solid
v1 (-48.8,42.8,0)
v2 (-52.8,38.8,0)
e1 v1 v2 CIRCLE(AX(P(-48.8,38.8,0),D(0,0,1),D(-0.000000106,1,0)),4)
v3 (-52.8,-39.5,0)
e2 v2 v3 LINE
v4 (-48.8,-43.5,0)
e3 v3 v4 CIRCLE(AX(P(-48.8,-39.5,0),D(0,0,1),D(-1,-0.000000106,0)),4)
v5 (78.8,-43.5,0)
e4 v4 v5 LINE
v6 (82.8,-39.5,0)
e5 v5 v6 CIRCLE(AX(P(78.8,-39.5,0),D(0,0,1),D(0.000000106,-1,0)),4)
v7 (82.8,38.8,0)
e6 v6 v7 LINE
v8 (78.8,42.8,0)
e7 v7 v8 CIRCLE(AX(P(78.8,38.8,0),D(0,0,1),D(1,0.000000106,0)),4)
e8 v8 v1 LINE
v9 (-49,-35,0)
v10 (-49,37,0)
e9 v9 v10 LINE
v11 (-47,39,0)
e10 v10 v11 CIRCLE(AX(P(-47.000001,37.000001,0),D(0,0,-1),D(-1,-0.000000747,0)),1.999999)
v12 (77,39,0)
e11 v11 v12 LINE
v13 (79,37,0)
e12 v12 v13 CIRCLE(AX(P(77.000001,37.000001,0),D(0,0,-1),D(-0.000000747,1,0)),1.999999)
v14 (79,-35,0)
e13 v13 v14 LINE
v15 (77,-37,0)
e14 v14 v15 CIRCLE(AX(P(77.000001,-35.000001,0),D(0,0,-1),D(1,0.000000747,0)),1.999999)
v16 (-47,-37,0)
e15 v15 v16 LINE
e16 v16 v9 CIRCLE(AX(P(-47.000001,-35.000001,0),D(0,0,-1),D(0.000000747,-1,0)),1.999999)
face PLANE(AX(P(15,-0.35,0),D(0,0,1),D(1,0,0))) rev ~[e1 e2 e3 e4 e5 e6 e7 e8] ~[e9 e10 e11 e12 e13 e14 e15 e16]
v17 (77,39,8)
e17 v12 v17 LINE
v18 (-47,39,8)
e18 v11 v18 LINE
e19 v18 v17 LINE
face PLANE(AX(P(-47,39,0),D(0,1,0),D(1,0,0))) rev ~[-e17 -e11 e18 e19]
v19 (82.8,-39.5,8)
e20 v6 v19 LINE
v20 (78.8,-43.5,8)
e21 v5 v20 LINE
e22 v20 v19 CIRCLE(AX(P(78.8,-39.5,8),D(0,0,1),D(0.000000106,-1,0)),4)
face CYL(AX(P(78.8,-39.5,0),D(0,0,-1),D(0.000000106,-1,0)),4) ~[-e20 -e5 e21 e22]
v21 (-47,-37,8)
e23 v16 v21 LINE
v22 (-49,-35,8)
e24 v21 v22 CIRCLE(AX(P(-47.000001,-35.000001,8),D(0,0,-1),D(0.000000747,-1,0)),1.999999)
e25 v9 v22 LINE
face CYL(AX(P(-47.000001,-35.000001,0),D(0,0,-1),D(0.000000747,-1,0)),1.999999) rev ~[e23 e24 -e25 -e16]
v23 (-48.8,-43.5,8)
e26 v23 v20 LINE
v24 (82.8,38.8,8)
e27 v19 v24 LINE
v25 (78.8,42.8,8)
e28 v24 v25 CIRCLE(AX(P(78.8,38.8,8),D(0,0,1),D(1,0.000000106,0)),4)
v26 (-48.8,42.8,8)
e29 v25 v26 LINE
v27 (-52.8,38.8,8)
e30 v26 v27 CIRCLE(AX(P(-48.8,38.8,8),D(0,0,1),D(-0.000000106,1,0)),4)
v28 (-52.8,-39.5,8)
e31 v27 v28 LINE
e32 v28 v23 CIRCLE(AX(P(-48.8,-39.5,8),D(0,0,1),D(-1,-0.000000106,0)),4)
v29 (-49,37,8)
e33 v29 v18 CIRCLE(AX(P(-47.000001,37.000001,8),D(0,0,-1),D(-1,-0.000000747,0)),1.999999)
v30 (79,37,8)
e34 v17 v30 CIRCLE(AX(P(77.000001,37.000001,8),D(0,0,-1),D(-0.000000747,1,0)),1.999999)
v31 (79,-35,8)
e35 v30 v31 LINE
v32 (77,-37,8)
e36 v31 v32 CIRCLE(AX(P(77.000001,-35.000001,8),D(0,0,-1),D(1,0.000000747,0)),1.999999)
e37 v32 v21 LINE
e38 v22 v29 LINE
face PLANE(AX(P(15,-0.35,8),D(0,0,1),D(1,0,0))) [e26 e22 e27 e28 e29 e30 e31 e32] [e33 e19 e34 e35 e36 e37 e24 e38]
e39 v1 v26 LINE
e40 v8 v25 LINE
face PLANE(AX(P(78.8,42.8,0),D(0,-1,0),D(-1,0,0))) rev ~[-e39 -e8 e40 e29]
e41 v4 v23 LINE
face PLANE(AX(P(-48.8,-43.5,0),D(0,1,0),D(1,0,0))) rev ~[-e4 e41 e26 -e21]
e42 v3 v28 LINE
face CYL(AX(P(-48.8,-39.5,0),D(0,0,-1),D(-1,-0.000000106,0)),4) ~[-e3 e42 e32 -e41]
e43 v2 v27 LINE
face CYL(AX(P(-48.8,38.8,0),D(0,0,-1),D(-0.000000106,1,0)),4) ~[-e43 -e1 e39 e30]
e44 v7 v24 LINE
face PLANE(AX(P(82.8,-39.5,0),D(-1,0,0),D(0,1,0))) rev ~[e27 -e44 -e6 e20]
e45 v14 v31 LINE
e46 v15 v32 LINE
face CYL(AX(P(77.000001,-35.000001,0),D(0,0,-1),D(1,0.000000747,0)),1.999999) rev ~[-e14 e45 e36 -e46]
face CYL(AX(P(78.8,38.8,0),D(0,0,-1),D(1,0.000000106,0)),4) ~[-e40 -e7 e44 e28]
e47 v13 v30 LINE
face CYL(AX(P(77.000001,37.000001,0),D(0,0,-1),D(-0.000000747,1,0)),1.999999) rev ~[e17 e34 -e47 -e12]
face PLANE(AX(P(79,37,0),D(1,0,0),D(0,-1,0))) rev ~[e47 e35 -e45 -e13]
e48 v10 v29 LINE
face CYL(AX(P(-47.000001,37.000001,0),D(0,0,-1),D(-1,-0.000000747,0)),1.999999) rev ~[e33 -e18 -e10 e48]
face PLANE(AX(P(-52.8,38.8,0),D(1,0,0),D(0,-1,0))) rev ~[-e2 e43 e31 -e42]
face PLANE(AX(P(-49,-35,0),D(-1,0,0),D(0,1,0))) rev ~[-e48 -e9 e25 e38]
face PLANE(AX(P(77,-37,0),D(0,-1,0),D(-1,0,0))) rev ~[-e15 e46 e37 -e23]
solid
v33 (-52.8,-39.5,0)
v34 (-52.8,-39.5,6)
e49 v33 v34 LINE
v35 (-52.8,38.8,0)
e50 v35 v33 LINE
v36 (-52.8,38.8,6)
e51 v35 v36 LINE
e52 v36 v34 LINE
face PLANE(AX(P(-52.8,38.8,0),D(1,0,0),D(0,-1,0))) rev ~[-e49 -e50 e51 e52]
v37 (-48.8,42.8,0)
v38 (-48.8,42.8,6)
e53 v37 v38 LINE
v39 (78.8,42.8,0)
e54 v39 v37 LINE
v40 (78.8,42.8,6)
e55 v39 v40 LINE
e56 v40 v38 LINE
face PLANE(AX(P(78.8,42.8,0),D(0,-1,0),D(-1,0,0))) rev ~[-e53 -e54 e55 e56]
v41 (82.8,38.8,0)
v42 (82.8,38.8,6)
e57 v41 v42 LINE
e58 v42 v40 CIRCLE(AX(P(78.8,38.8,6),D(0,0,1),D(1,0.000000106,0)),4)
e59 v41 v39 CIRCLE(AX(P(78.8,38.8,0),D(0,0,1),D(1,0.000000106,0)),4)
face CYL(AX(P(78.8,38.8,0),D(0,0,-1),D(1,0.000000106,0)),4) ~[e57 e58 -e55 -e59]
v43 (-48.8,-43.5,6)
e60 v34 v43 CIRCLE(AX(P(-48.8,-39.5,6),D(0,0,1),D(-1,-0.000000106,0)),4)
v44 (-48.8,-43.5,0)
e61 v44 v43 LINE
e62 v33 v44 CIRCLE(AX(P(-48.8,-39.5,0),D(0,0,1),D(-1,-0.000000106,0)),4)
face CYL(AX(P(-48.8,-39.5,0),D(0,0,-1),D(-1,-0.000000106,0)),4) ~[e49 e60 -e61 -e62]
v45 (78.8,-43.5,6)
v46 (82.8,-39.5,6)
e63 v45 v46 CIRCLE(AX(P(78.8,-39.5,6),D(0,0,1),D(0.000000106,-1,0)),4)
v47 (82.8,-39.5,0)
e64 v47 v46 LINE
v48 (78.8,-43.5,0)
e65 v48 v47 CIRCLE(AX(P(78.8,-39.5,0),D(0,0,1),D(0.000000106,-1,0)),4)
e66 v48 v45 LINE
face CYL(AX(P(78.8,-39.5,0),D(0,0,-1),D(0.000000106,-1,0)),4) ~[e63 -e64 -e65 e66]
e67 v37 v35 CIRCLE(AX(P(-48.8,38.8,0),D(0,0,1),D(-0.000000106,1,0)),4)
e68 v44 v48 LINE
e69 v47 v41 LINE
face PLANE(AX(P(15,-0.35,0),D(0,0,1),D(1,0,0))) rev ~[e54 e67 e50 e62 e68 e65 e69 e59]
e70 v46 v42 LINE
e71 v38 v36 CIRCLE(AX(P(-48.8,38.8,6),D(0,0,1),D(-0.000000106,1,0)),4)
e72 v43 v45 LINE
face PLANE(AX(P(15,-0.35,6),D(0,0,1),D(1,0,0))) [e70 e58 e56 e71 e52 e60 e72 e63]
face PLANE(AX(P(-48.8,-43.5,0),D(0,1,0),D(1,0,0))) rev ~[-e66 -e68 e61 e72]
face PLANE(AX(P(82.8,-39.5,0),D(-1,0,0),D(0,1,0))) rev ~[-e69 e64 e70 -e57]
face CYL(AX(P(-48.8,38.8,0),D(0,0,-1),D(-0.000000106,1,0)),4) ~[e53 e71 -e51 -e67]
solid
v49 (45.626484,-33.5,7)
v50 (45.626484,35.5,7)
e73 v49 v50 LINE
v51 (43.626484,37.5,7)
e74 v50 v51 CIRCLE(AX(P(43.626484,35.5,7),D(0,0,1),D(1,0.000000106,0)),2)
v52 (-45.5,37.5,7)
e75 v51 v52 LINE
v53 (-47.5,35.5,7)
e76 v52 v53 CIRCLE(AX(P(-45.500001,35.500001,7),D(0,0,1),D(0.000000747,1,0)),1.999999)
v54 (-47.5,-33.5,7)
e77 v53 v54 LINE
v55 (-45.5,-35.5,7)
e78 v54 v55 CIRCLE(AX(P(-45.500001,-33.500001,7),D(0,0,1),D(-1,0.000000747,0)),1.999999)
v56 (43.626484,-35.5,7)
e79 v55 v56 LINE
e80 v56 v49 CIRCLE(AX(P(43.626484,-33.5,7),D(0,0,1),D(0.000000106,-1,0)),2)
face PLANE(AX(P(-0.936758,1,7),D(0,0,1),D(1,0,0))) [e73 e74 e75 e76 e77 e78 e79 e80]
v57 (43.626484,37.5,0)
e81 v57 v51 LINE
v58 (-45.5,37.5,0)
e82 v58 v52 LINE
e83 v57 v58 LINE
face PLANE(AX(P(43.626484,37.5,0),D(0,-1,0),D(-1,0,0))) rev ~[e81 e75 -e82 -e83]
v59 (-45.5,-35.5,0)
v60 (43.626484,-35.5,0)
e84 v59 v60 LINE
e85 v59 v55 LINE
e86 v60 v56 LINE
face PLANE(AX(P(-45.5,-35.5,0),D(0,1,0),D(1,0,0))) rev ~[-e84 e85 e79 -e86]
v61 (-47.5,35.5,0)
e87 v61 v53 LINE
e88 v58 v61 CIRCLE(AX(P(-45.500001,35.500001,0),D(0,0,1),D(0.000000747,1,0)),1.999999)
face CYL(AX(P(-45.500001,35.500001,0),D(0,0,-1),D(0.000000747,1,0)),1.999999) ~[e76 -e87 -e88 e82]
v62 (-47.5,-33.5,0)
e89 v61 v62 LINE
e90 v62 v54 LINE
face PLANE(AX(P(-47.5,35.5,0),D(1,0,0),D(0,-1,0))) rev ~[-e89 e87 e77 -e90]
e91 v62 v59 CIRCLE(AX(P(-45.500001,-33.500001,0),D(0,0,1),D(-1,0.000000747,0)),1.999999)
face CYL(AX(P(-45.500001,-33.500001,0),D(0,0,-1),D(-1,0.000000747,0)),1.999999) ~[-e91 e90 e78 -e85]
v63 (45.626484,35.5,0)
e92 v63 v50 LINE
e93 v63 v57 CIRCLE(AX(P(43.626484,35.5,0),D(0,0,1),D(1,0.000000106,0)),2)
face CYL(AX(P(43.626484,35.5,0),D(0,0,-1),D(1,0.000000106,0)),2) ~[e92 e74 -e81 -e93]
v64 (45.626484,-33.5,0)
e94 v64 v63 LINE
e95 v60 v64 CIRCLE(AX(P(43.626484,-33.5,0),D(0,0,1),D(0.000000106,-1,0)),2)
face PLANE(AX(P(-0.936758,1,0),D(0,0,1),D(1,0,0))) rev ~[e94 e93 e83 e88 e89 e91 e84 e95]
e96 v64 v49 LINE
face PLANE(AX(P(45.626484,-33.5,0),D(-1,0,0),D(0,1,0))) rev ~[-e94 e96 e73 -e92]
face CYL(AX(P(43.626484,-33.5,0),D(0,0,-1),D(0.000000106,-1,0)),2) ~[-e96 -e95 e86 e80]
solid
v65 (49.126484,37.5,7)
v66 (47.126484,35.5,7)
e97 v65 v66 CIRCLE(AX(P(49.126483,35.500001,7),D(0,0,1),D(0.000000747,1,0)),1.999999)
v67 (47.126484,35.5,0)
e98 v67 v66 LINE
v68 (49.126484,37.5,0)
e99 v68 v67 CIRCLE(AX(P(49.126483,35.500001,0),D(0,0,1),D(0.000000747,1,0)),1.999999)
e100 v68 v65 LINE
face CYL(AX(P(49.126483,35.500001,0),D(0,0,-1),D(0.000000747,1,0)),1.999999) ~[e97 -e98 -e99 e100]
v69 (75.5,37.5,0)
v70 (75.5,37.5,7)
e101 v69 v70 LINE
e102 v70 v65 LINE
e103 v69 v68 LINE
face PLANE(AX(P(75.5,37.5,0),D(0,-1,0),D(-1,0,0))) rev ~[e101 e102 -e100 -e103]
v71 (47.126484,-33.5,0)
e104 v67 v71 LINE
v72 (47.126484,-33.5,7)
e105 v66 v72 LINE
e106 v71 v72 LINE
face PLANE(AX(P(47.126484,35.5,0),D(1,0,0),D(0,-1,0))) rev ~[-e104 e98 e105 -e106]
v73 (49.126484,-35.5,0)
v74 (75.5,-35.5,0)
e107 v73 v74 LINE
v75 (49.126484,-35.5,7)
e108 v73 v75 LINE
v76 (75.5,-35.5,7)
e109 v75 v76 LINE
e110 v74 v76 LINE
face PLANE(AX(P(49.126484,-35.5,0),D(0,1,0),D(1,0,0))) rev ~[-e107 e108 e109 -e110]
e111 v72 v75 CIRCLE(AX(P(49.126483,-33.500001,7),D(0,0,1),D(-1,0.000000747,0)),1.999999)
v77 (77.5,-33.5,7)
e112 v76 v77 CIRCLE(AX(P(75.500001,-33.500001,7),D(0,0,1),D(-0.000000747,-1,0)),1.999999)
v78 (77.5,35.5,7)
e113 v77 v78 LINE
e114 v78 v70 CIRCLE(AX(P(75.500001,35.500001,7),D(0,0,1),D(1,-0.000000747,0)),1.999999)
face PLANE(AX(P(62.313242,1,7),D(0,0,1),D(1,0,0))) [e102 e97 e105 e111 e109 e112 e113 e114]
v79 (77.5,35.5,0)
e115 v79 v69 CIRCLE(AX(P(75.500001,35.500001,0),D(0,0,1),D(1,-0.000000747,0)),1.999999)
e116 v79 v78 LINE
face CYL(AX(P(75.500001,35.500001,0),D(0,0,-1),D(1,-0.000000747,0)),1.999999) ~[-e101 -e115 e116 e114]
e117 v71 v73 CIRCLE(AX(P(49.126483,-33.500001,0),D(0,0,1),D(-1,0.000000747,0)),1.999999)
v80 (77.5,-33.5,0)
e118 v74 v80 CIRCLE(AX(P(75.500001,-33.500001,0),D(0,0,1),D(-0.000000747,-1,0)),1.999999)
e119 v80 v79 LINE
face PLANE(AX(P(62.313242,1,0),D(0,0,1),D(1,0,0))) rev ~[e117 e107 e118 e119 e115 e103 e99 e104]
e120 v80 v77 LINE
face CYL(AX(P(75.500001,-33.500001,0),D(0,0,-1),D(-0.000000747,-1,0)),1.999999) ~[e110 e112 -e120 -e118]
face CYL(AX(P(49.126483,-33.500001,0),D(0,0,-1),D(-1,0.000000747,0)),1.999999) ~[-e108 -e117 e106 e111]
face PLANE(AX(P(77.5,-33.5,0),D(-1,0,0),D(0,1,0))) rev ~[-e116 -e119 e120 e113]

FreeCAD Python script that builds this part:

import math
import FreeCAD as App
import Part
import Sketcher
from FreeCAD import Vector
Q = App.Units.Quantity

doc = App.newDocument("Part")
params = doc.addObject("Spreadsheet::Sheet", "Params")
for row, (alias, value) in enumerate([
    ("sketch1_radius", "4 mm"),
    ("sketch1_radius2", "1.999999 mm"),
    ("sketch1_width", "124 mm"),
    ("sketch1_height", "72 mm"),
    ("sketch1_width2", "127.6 mm"),
    ("pad1_length", "8 mm"),
    ("sketch2_radius", "2 mm"),
    ("sketch2_height", "69 mm"),
    ("pad2_length", "7 mm"),
    ("sketch3_radius", "4 mm"),
    ("sketch3_width", "127.6 mm"),
    ("sketch3_height", "78.3 mm"),
    ("pad3_length", "6 mm"),
], start=1):
    params.set(f"A{row}", alias)
    params.set(f"B{row}", "=" + value)
    params.setAlias(f"B{row}", alias)

body = doc.addObject("PartDesign::Body", "Body")

sketch1 = doc.addObject("Sketcher::SketchObject", "Sketch")
body.addObject(sketch1)
sketch1.AttachmentSupport = (doc.XY_Plane, [""])
sketch1.MapMode = "FlatFace"
sketch1.addGeometry([
    Part.LineSegment(Vector(78.8, 42.8, 0), Vector(-48.8, 42.8, 0)),
    Part.ArcOfCircle(Part.Circle(Vector(-48.8, 38.8, 0), Vector(0, 0, 1), 4), math.radians(90), math.radians(180)),
    Part.LineSegment(Vector(-52.8, 38.8, 0), Vector(-52.8, -39.5, 0)),
    Part.ArcOfCircle(Part.Circle(Vector(-48.8, -39.5, 0), Vector(0, 0, 1), 4), math.radians(-180), math.radians(-90)),
    Part.LineSegment(Vector(-48.8, -43.5, 0), Vector(78.8, -43.5, 0)),
    Part.ArcOfCircle(Part.Circle(Vector(78.8, -39.5, 0), Vector(0, 0, 1), 4), math.radians(-90), math.radians(0)),
    Part.LineSegment(Vector(82.8, -39.5, 0), Vector(82.8, 38.8, 0)),
    Part.ArcOfCircle(Part.Circle(Vector(78.8, 38.8, 0), Vector(0, 0, 1), 4), math.radians(0), math.radians(90)),
    Part.ArcOfCircle(Part.Circle(Vector(-47, 37, 0), Vector(0, 0, 1), 2), math.radians(90), math.radians(180)),
    Part.LineSegment(Vector(-47, 39, 0), Vector(77, 39, 0)),
    Part.ArcOfCircle(Part.Circle(Vector(77, 37, 0), Vector(0, 0, 1), 2), math.radians(0), math.radians(90)),
    Part.LineSegment(Vector(79, 37, 0), Vector(79, -35, 0)),
    Part.ArcOfCircle(Part.Circle(Vector(77, -35, 0), Vector(0, 0, 1), 2), math.radians(-90), math.radians(0)),
    Part.LineSegment(Vector(77, -37, 0), Vector(-47, -37, 0)),
    Part.ArcOfCircle(Part.Circle(Vector(-47, -35, 0), Vector(0, 0, 1), 2), math.radians(180), math.radians(270)),
    Part.LineSegment(Vector(-49, -35, 0), Vector(-49, 37, 0)),
], False)
sketch1.addConstraint([
    Sketcher.Constraint("Tangent", 0, 2, 1, 1),
    Sketcher.Constraint("Tangent", 1, 2, 2, 1),
    Sketcher.Constraint("Tangent", 2, 2, 3, 1),
    Sketcher.Constraint("Tangent", 3, 2, 4, 1),
    Sketcher.Constraint("Tangent", 4, 2, 5, 1),
    Sketcher.Constraint("Tangent", 5, 2, 6, 1),
    Sketcher.Constraint("Tangent", 6, 2, 7, 1),
    Sketcher.Constraint("Tangent", 7, 2, 0, 1),
    Sketcher.Constraint("Tangent", 8, 1, 9, 1),
    Sketcher.Constraint("Tangent", 9, 2, 10, 2),
    Sketcher.Constraint("Tangent", 10, 1, 11, 1),
    Sketcher.Constraint("Tangent", 11, 2, 12, 2),
    Sketcher.Constraint("Tangent", 12, 1, 13, 1),
    Sketcher.Constraint("Tangent", 13, 2, 14, 2),
    Sketcher.Constraint("Tangent", 14, 1, 15, 1),
    Sketcher.Constraint("Tangent", 15, 2, 8, 2),
    Sketcher.Constraint("Horizontal", 0),
    Sketcher.Constraint("Vertical", 2),
    Sketcher.Constraint("Horizontal", 4),
    Sketcher.Constraint("Vertical", 6),
    Sketcher.Constraint("Horizontal", 9),
    Sketcher.Constraint("Vertical", 11),
    Sketcher.Constraint("Horizontal", 13),
    Sketcher.Constraint("Vertical", 15),
    Sketcher.Constraint("Equal", 1, 3),
    Sketcher.Constraint("Equal", 3, 5),
    Sketcher.Constraint("Equal", 5, 7),
    Sketcher.Constraint("Equal", 8, 10),
    Sketcher.Constraint("Equal", 10, 12),
    Sketcher.Constraint("Equal", 12, 14),
    Sketcher.Constraint("Radius", 1, Q("4 mm")),
    Sketcher.Constraint("Radius", 8, Q("1.999999 mm")),
    Sketcher.Constraint("DistanceX", 9, 1, 9, 2, Q("124 mm")),
    Sketcher.Constraint("DistanceY", 11, 2, 11, 1, Q("72 mm")),
    Sketcher.Constraint("DistanceX", 0, 2, 0, 1, Q("127.6 mm")),
    Sketcher.Constraint("DistanceY", 2, 2, 2, 1, Q("78.3 mm")),
    Sketcher.Constraint("DistanceX", 8, 3, -1, 1, Q("47.000001 mm")),
    Sketcher.Constraint("DistanceY", -1, 1, 8, 3, Q("37.000001 mm")),
    Sketcher.Constraint("DistanceX", 1, 3, -1, 1, Q("48.8 mm")),
    Sketcher.Constraint("DistanceY", -1, 1, 1, 3, Q("38.8 mm")),
])
sketch1.setExpression("Constraints[30]", "Params.sketch1_radius")
sketch1.setExpression("Constraints[31]", "Params.sketch1_radius2")
sketch1.setExpression("Constraints[32]", "Params.sketch1_width")
sketch1.setExpression("Constraints[33]", "Params.sketch1_height")
sketch1.setExpression("Constraints[34]", "Params.sketch1_width2")
pad1 = doc.addObject("PartDesign::Pad", "Pad")
body.addObject(pad1)
pad1.Profile = sketch1
pad1.setExpression("Length", "Params.pad1_length")
body2 = doc.addObject("PartDesign::Body", "Body001")
body2.AllowCompound = True

sketch2 = doc.addObject("Sketcher::SketchObject", "Sketch001")
body2.addObject(sketch2)
sketch2.AttachmentSupport = (doc.getObject("XY_Plane001"), [""])
sketch2.MapMode = "FlatFace"
sketch2.addGeometry([
    Part.ArcOfCircle(Part.Circle(Vector(43.6, 35.5, 0), Vector(0, 0, 1), 2), math.radians(0), math.radians(90)),
    Part.LineSegment(Vector(43.6, 37.5, 0), Vector(-45.5, 37.5, 0)),
    Part.ArcOfCircle(Part.Circle(Vector(-45.5, 35.5, 0), Vector(0, 0, 1), 2), math.radians(90), math.radians(180)),
    Part.LineSegment(Vector(-47.5, 35.5, 0), Vector(-47.5, -33.5, 0)),
    Part.ArcOfCircle(Part.Circle(Vector(-45.5, -33.5, 0), Vector(0, 0, 1), 2), math.radians(180), math.radians(270)),
    Part.LineSegment(Vector(-45.5, -35.5, 0), Vector(43.6, -35.5, 0)),
    Part.ArcOfCircle(Part.Circle(Vector(43.6, -33.5, 0), Vector(0, 0, 1), 2), math.radians(-90), math.radians(0)),
    Part.LineSegment(Vector(45.6, -33.5, 0), Vector(45.6, 35.5, 0)),
    Part.LineSegment(Vector(75.5, 37.5, 0), Vector(49.1, 37.5, 0)),
    Part.ArcOfCircle(Part.Circle(Vector(49.1, 35.5, 0), Vector(0, 0, 1), 2), math.radians(90), math.radians(180)),
    Part.LineSegment(Vector(47.1, 35.5, 0), Vector(47.1, -33.5, 0)),
    Part.ArcOfCircle(Part.Circle(Vector(49.1, -33.5, 0), Vector(0, 0, 1), 2), math.radians(180), math.radians(270)),
    Part.LineSegment(Vector(49.1, -35.5, 0), Vector(75.5, -35.5, 0)),
    Part.ArcOfCircle(Part.Circle(Vector(75.5, -33.5, 0), Vector(0, 0, 1), 2), math.radians(-90), math.radians(0)),
    Part.LineSegment(Vector(77.5, -33.5, 0), Vector(77.5, 35.5, 0)),
    Part.ArcOfCircle(Part.Circle(Vector(75.5, 35.5, 0), Vector(0, 0, 1), 2), math.radians(0), math.radians(90)),
], False)
sketch2.addConstraint([
    Sketcher.Constraint("Tangent", 0, 2, 1, 1),
    Sketcher.Constraint("Tangent", 1, 2, 2, 1),
    Sketcher.Constraint("Tangent", 2, 2, 3, 1),
    Sketcher.Constraint("Tangent", 3, 2, 4, 1),
    Sketcher.Constraint("Tangent", 4, 2, 5, 1),
    Sketcher.Constraint("Tangent", 5, 2, 6, 1),
    Sketcher.Constraint("Tangent", 6, 2, 7, 1),
    Sketcher.Constraint("Tangent", 7, 2, 0, 1),
    Sketcher.Constraint("Tangent", 8, 2, 9, 1),
    Sketcher.Constraint("Tangent", 9, 2, 10, 1),
    Sketcher.Constraint("Tangent", 10, 2, 11, 1),
    Sketcher.Constraint("Tangent", 11, 2, 12, 1),
    Sketcher.Constraint("Tangent", 12, 2, 13, 1),
    Sketcher.Constraint("Tangent", 13, 2, 14, 1),
    Sketcher.Constraint("Tangent", 14, 2, 15, 1),
    Sketcher.Constraint("Tangent", 15, 2, 8, 1),
    Sketcher.Constraint("Horizontal", 1),
    Sketcher.Constraint("Vertical", 3),
    Sketcher.Constraint("Horizontal", 5),
    Sketcher.Constraint("Vertical", 7),
    Sketcher.Constraint("Horizontal", 8),
    Sketcher.Constraint("Vertical", 10),
    Sketcher.Constraint("Horizontal", 12),
    Sketcher.Constraint("Vertical", 14),
    Sketcher.Constraint("Equal", 0, 2),
    Sketcher.Constraint("Equal", 2, 4),
    Sketcher.Constraint("Equal", 4, 6),
    Sketcher.Constraint("Equal", 6, 9),
    Sketcher.Constraint("Equal", 9, 11),
    Sketcher.Constraint("Equal", 11, 13),
    Sketcher.Constraint("Equal", 13, 15),
    Sketcher.Constraint("Horizontal", 2, 3, 9, 3),
    Sketcher.Constraint("Horizontal", 6, 3, 11, 3),
    Sketcher.Constraint("Radius", 0, Q("2 mm")),
    Sketcher.Constraint("DistanceY", 3, 2, 3, 1, Q("69 mm")),
    Sketcher.Constraint("DistanceY", -1, 1, 0, 3, Q("35.5 mm")),
    Sketcher.Constraint("DistanceX", 2, 3, -1, 1, Q("45.500001 mm")),
    Sketcher.Constraint("DistanceX", -1, 1, 13, 3, Q("75.500001 mm")),
    Sketcher.Constraint("DistanceX", 0, 3, 9, 3, Q("5.499999 mm")),
    Sketcher.Constraint("DistanceX", 1, 2, 1, 1, Q("89.126484 mm")),
])
sketch2.setExpression("Constraints[33]", "Params.sketch2_radius")
sketch2.setExpression("Constraints[34]", "Params.sketch2_height")
pad2 = doc.addObject("PartDesign::Pad", "Pad001")
body2.addObject(pad2)
pad2.Profile = sketch2
pad2.setExpression("Length", "Params.pad2_length")
body3 = doc.addObject("PartDesign::Body", "Body002")

sketch3 = doc.addObject("Sketcher::SketchObject", "Sketch002")
body3.addObject(sketch3)
sketch3.AttachmentSupport = (doc.getObject("XY_Plane002"), [""])
sketch3.MapMode = "FlatFace"
sketch3.addGeometry([
    Part.LineSegment(Vector(78.8, 42.8, 0), Vector(-48.8, 42.8, 0)),
    Part.ArcOfCircle(Part.Circle(Vector(-48.8, 38.8, 0), Vector(0, 0, 1), 4), math.radians(90), math.radians(180)),
    Part.LineSegment(Vector(-52.8, 38.8, 0), Vector(-52.8, -39.5, 0)),
    Part.ArcOfCircle(Part.Circle(Vector(-48.8, -39.5, 0), Vector(0, 0, 1), 4), math.radians(-180), math.radians(-90)),
    Part.LineSegment(Vector(-48.8, -43.5, 0), Vector(78.8, -43.5, 0)),
    Part.ArcOfCircle(Part.Circle(Vector(78.8, -39.5, 0), Vector(0, 0, 1), 4), math.radians(-90), math.radians(0)),
    Part.LineSegment(Vector(82.8, -39.5, 0), Vector(82.8, 38.8, 0)),
    Part.ArcOfCircle(Part.Circle(Vector(78.8, 38.8, 0), Vector(0, 0, 1), 4), math.radians(0), math.radians(90)),
], False)
sketch3.addConstraint([
    Sketcher.Constraint("Tangent", 0, 2, 1, 1),
    Sketcher.Constraint("Tangent", 1, 2, 2, 1),
    Sketcher.Constraint("Tangent", 2, 2, 3, 1),
    Sketcher.Constraint("Tangent", 3, 2, 4, 1),
    Sketcher.Constraint("Tangent", 4, 2, 5, 1),
    Sketcher.Constraint("Tangent", 5, 2, 6, 1),
    Sketcher.Constraint("Tangent", 6, 2, 7, 1),
    Sketcher.Constraint("Tangent", 7, 2, 0, 1),
    Sketcher.Constraint("Horizontal", 0),
    Sketcher.Constraint("Vertical", 2),
    Sketcher.Constraint("Horizontal", 4),
    Sketcher.Constraint("Vertical", 6),
    Sketcher.Constraint("Equal", 1, 3),
    Sketcher.Constraint("Equal", 3, 5),
    Sketcher.Constraint("Equal", 5, 7),
    Sketcher.Constraint("Radius", 1, Q("4 mm")),
    Sketcher.Constraint("DistanceX", 0, 2, 0, 1, Q("127.6 mm")),
    Sketcher.Constraint("DistanceY", 2, 2, 2, 1, Q("78.3 mm")),
    Sketcher.Constraint("DistanceX", 1, 3, -1, 1, Q("48.8 mm")),
    Sketcher.Constraint("DistanceY", -1, 1, 1, 3, Q("38.8 mm")),
])
sketch3.setExpression("Constraints[15]", "Params.sketch3_radius")
sketch3.setExpression("Constraints[16]", "Params.sketch3_width")
sketch3.setExpression("Constraints[17]", "Params.sketch3_height")
pad3 = doc.addObject("PartDesign::Pad", "Pad002")
body3.addObject(pad3)
pad3.Profile = sketch3
pad3.setExpression("Length", "Params.pad3_length")

doc.recompute()
